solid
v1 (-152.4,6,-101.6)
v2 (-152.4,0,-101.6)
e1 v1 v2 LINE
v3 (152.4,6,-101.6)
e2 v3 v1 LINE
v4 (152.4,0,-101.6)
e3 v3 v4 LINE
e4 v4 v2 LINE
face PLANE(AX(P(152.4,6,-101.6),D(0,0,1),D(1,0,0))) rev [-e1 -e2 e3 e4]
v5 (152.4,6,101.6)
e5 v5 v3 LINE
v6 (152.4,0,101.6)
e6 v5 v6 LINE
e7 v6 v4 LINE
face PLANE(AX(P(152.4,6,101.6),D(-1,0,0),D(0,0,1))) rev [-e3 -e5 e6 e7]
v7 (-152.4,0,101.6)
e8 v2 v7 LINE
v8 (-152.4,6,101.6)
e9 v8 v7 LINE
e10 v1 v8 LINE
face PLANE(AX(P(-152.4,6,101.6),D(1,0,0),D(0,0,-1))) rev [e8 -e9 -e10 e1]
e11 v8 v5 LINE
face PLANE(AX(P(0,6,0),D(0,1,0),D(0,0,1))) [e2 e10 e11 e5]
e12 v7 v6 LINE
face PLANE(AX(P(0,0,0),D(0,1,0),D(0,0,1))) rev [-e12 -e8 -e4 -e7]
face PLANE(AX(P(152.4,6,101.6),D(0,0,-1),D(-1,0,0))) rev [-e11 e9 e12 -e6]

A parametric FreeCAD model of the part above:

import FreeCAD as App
import Part
import Sketcher
from FreeCAD import Vector
Q = App.Units.Quantity


def add_polygon(sketch, points):
    """Adds a closed chain of lines whose ends are joined by coincident constraints."""
    first, n = sketch.GeometryCount, len(points)
    for a, b in zip(points, points[1:] + points[:1]):
        sketch.addGeometry(Part.LineSegment(App.Vector(*a, 0), App.Vector(*b, 0)), False)
    for i in range(n):
        sketch.addConstraint(Sketcher.Constraint("Coincident", first + i, 2, first + (i + 1) % n, 1))

doc = App.newDocument("Part")
body = doc.addObject("PartDesign::Body", "Body")

sketch1 = body.newObject("Sketcher::SketchObject", "Sketch")
sketch1.AttachmentSupport = (doc.getObject("XZ_Plane"), [""])
sketch1.MapMode = "FlatFace"
add_polygon(sketch1, [(-152, -102), (-152, 102), (152, 102), (152, -102)])
sketch1.addConstraint(Sketcher.Constraint("Vertical", 0))
sketch1.addConstraint(Sketcher.Constraint("Horizontal", 1))
sketch1.addConstraint(Sketcher.Constraint("Vertical", 2))
sketch1.addConstraint(Sketcher.Constraint("Horizontal", 3))
sketch1.addConstraint(Sketcher.Constraint("Symmetric", 0, 2, 2, 2, -1, 1))
sketch1.addConstraint(Sketcher.Constraint("DistanceX", 1, 1, 1, 2, Q("12 in")))
sketch1.addConstraint(Sketcher.Constraint("DistanceY", 0, 1, 0, 2, Q("8 in")))
pad1 = body.newObject("PartDesign::Pad", "Pad")
pad1.Profile = sketch1
pad1.Length = 6
pad1.Reversed = True

doc.recompute()
